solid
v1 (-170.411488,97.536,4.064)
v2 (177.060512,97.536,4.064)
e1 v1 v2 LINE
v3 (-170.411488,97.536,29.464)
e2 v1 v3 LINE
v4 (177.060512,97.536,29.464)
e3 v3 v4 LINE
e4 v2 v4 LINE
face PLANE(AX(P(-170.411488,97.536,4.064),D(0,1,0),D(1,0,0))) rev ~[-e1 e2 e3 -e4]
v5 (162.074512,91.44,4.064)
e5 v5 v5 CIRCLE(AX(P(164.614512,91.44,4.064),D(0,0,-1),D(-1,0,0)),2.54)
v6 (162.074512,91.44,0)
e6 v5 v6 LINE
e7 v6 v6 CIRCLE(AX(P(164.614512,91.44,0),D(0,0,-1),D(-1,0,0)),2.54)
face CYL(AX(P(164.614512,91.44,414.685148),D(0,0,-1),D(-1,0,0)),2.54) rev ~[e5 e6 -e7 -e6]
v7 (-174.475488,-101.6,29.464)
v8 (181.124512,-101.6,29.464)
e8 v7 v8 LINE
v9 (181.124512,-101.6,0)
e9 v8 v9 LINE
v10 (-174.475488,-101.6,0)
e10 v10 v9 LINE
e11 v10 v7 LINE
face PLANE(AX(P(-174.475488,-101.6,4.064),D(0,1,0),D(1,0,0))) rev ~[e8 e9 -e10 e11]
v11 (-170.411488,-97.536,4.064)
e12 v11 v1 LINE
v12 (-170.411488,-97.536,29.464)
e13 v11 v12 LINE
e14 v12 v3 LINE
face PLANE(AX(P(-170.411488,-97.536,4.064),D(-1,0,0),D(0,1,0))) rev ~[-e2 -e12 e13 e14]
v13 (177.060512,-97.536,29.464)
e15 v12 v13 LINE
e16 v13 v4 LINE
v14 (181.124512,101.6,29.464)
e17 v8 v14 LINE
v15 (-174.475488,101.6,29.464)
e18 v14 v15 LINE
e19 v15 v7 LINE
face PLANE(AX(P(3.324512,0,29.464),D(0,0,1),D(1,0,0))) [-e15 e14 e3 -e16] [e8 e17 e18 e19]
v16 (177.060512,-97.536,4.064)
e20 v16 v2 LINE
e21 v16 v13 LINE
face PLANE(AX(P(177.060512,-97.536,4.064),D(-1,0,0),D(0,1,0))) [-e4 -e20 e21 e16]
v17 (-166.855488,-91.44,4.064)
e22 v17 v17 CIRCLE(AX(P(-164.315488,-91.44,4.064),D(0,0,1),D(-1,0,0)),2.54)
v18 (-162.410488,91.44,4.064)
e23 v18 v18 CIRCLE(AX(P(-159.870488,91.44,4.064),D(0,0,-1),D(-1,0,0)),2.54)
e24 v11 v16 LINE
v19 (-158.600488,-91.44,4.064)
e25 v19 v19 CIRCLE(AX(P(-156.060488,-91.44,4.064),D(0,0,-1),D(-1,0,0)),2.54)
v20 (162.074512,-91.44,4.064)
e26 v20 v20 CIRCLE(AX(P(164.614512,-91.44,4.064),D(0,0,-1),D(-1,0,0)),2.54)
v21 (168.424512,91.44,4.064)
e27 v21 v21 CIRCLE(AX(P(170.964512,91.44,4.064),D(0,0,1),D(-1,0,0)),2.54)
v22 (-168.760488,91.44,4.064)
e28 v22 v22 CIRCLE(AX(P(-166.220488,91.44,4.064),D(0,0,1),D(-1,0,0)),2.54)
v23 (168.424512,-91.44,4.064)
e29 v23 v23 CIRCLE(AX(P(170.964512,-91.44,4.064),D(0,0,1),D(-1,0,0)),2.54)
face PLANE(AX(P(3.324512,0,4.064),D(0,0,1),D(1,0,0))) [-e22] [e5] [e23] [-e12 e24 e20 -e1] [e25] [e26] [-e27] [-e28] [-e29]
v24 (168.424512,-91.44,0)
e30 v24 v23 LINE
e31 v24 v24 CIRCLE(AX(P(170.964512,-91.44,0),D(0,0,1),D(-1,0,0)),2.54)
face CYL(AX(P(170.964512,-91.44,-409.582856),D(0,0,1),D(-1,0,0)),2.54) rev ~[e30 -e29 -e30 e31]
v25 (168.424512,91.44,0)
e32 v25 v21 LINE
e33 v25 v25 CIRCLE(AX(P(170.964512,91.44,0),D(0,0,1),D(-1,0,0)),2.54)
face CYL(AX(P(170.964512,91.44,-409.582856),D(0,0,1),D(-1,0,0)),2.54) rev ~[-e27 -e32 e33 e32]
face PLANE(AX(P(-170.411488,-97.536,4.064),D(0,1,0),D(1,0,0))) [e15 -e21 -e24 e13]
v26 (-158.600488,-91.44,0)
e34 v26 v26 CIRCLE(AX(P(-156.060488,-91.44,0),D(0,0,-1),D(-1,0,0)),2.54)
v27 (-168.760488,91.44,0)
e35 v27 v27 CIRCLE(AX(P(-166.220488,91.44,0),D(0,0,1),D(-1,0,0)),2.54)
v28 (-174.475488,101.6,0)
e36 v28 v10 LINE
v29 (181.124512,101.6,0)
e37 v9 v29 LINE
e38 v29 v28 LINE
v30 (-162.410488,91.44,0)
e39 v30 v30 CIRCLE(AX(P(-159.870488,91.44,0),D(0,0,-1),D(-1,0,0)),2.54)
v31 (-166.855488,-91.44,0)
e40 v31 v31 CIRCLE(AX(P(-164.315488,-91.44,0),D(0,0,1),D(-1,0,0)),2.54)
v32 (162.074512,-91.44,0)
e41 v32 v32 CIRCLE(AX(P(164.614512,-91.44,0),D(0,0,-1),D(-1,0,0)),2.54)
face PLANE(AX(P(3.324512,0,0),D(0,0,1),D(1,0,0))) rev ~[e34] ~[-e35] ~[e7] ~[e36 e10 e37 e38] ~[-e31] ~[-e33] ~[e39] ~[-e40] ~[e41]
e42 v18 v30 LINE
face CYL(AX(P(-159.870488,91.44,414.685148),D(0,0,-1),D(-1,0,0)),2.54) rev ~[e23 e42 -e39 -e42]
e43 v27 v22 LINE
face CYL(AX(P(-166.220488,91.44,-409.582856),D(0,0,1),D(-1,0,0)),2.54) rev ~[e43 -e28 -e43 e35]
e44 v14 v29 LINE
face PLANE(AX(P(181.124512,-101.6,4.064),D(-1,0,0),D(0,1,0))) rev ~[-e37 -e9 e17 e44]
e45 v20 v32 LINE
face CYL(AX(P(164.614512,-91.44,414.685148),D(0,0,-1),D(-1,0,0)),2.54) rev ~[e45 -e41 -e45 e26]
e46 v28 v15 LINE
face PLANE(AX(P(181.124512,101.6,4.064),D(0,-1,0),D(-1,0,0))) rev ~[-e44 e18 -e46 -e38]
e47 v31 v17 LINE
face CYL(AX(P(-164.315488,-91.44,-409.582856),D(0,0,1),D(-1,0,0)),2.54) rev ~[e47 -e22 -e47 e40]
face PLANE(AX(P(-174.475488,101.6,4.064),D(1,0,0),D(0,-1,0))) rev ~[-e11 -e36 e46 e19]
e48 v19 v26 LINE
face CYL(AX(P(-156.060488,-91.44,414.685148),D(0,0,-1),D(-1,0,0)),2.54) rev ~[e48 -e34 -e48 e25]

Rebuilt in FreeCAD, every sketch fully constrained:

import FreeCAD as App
import Part
import Sketcher
Q = App.Units.Quantity

doc = App.newDocument("Part")
body = doc.addObject("PartDesign::Body", "Body")

# Sketch on XY plane
sketch1 = body.newObject("Sketcher::SketchObject", "Sketch")
sketch1.AttachmentSupport = (doc.getObject("XY_Plane"), [""])
sketch1.MapMode = "FlatFace"
sketch1.addGeometry([
    Part.LineSegment(App.Vector(181.124512, 101.6, 0), App.Vector(-174.475488, 101.6, 0)),
    Part.LineSegment(App.Vector(-174.475488, 101.6, 0), App.Vector(-174.475488, -101.6, 0)),
    Part.LineSegment(App.Vector(-174.475488, -101.6, 0), App.Vector(181.124512, -101.6, 0)),
    Part.LineSegment(App.Vector(181.124512, -101.6, 0), App.Vector(181.124512, 101.6, 0)),
], False)
sketch1.addConstraint([
    Sketcher.Constraint("Coincident", 0, 2, 1, 1),
    Sketcher.Constraint("Coincident", 1, 2, 2, 1),
    Sketcher.Constraint("Coincident", 2, 2, 3, 1),
    Sketcher.Constraint("Coincident", 3, 2, 0, 1),
    Sketcher.Constraint("Horizontal", 0),
    Sketcher.Constraint("Vertical", 1),
    Sketcher.Constraint("Horizontal", 2),
    Sketcher.Constraint("Vertical", 3),
    Sketcher.Constraint("DistanceX", 0, 2, 0, 1, Q("14 in")),
    Sketcher.Constraint("DistanceY", 1, 2, 1, 1, Q("8 in")),
    Sketcher.Constraint("DistanceY", -1, 1, 0, 2, Q("4 in")),
    Sketcher.Constraint("DistanceX", 0, 2, -1, 1, 174.475488),
])
pad1 = body.newObject("PartDesign::Pad", "Pad")
pad1.Profile = sketch1
pad1.Length = Q("0.16 in")

# Sketch on XY plane
sketch2 = body.newObject("Sketcher::SketchObject", "Sketch001")
sketch2.AttachmentSupport = (doc.getObject("XY_Plane"), [""])
sketch2.MapMode = "FlatFace"
sketch2.addGeometry([
    Part.Circle(App.Vector(-166.220488, 91.44, 0), App.Vector(0, 0, 1), 2.54),
    Part.Circle(App.Vector(170.964512, 91.44, 0), App.Vector(0, 0, 1), 2.54),
    Part.Circle(App.Vector(-164.315488, -91.44, 0), App.Vector(0, 0, 1), 2.54),
    Part.Circle(App.Vector(170.964512, -91.44, 0), App.Vector(0, 0, 1), 2.54),
], False)
sketch2.addConstraint([
    Sketcher.Constraint("Equal", 0, 1),
    Sketcher.Constraint("Equal", 1, 2),
    Sketcher.Constraint("Equal", 2, 3),
    Sketcher.Constraint("Symmetric", 1, 3, 3, 3, -1),
    Sketcher.Constraint("Horizontal", 0, 3, 1, 3),
    Sketcher.Constraint("Horizontal", 2, 3, 3, 3),
    Sketcher.Constraint("Diameter", 0, Q("0.2 in")),
    Sketcher.Constraint("DistanceY", -1, 1, 0, 3, Q("3.6 in")),
    Sketcher.Constraint("DistanceX", 2, 3, 1, 3, Q("13.2 in")),
    Sketcher.Constraint("DistanceX", 0, 3, 1, 3, Q("13.275 in")),
    Sketcher.Constraint("DistanceX", 0, 3, -1, 1, 166.220488),
])
doc.recompute()
hole = body.newObject("PartDesign::Hole", "Hole")
hole.Profile = sketch2
hole.ThreadType = "None"
hole.Diameter = Q("0.2 in")
hole.DepthType = "ThroughAll"
hole.Reversed = True

# Sketch on XY plane
sketch3 = body.newObject("Sketcher::SketchObject", "Sketch002")
sketch3.AttachmentSupport = (doc.getObject("XY_Plane"), [""])
sketch3.MapMode = "FlatFace"
sketch3.AttachmentOffset = App.Placement(App.Vector(0, 0, 0.16 * 25.4), App.Rotation())
sketch3.addGeometry([
    Part.LineSegment(App.Vector(181.124512, 101.6, 0), App.Vector(-174.475488, 101.6, 0)),  # 0
    Part.LineSegment(App.Vector(-174.475488, 101.6, 0), App.Vector(-174.475488, -101.6, 0)),  # 1
    Part.LineSegment(App.Vector(-174.475488, -101.6, 0), App.Vector(181.124512, -101.6, 0)),  # 2
    Part.LineSegment(App.Vector(181.124512, -101.6, 0), App.Vector(181.124512, 101.6, 0)),  # 3
    Part.LineSegment(App.Vector(177.060512, -97.536, 0), App.Vector(-170.411488, -97.536, 0)),  # 4
    Part.LineSegment(App.Vector(-170.411488, -97.536, 0), App.Vector(-170.411488, 97.536, 0)),  # 5
    Part.LineSegment(App.Vector(-170.411488, 97.536, 0), App.Vector(177.060512, 97.536, 0)),  # 6
    Part.LineSegment(App.Vector(177.060512, 97.536, 0), App.Vector(177.060512, -97.536, 0)),  # 7
], False)
sketch3.addConstraint([
    Sketcher.Constraint("Coincident", 0, 2, 1, 1),
    Sketcher.Constraint("Coincident", 1, 2, 2, 1),
    Sketcher.Constraint("Coincident", 2, 2, 3, 1),
    Sketcher.Constraint("Coincident", 3, 2, 0, 1),
    Sketcher.Constraint("Coincident", 4, 2, 5, 1),
    Sketcher.Constraint("Coincident", 5, 2, 6, 1),
    Sketcher.Constraint("Coincident", 6, 2, 7, 1),
    Sketcher.Constraint("Coincident", 7, 2, 4, 1),
    Sketcher.Constraint("Horizontal", 0),
    Sketcher.Constraint("Vertical", 1),
    Sketcher.Constraint("Horizontal", 2),
    Sketcher.Constraint("Vertical", 3),
    Sketcher.Constraint("Horizontal", 4),
    Sketcher.Constraint("Vertical", 5),
    Sketcher.Constraint("Horizontal", 6),
    Sketcher.Constraint("Vertical", 7),
    Sketcher.Constraint("DistanceX", 0, 2, 0, 1, Q("14 in")),
    Sketcher.Constraint("DistanceY", 1, 2, 1, 1, Q("8 in")),
    Sketcher.Constraint("DistanceY", -1, 1, 0, 2, Q("4 in")),
    Sketcher.Constraint("DistanceX", 4, 2, 4, 1, Q("13.68 in")),
    Sketcher.Constraint("DistanceY", 5, 1, 5, 2, Q("7.68 in")),
    Sketcher.Constraint("DistanceY", 4, 2, -1, 1, Q("3.84 in")),
    Sketcher.Constraint("DistanceX", 1, 2, 4, 2, Q("0.16 in")),
    Sketcher.Constraint("DistanceX", 0, 2, -1, 1, 174.475488),
])
pad2 = body.newObject("PartDesign::Pad", "Pad001")
pad2.Profile = sketch3
pad2.Length = Q("1 in")

# Sketch on XY plane
sketch4 = body.newObject("Sketcher::SketchObject", "Sketch003")
sketch4.AttachmentSupport = (doc.getObject("XY_Plane"), [""])
sketch4.MapMode = "FlatFace"
sketch4.AttachmentOffset = App.Placement(App.Vector(0, 0, 0.16 * 25.4), App.Rotation())
sketch4.addGeometry([
    Part.Circle(App.Vector(-156.060488, -91.44, 0), App.Vector(0, 0, 1), 2.54),
    Part.Circle(App.Vector(164.614512, -91.44, 0), App.Vector(0, 0, 1), 2.54),
    Part.Circle(App.Vector(164.614512, 91.44, 0), App.Vector(0, 0, 1), 2.54),
    Part.Circle(App.Vector(-159.870488, 91.44, 0), App.Vector(0, 0, 1), 2.54),
], False)
sketch4.addConstraint([
    Sketcher.Constraint("Equal", 0, 1),
    Sketcher.Constraint("Equal", 1, 2),
    Sketcher.Constraint("Equal", 2, 3),
    Sketcher.Constraint("Symmetric", 1, 3, 2, 3, -1),
    Sketcher.Constraint("Horizontal", 0, 3, 1, 3),
    Sketcher.Constraint("Horizontal", 2, 3, 3, 3),
    Sketcher.Constraint("Diameter", 0, Q("0.2 in")),
    Sketcher.Constraint("DistanceY", 0, 3, -1, 1, Q("3.6 in")),
    Sketcher.Constraint("DistanceX", 3, 3, 0, 3, Q("0.15 in")),
    Sketcher.Constraint("DistanceX", 0, 3, 1, 3, Q("12.625 in")),
    Sketcher.Constraint("DistanceX", 0, 3, -1, 1, 156.060488),
])
doc.recompute()
hole2 = body.newObject("PartDesign::Hole", "Hole001")
hole2.Profile = sketch4
hole2.ThreadType = "None"
hole2.Diameter = Q("0.2 in")
hole2.DepthType = "ThroughAll"

doc.recompute()
